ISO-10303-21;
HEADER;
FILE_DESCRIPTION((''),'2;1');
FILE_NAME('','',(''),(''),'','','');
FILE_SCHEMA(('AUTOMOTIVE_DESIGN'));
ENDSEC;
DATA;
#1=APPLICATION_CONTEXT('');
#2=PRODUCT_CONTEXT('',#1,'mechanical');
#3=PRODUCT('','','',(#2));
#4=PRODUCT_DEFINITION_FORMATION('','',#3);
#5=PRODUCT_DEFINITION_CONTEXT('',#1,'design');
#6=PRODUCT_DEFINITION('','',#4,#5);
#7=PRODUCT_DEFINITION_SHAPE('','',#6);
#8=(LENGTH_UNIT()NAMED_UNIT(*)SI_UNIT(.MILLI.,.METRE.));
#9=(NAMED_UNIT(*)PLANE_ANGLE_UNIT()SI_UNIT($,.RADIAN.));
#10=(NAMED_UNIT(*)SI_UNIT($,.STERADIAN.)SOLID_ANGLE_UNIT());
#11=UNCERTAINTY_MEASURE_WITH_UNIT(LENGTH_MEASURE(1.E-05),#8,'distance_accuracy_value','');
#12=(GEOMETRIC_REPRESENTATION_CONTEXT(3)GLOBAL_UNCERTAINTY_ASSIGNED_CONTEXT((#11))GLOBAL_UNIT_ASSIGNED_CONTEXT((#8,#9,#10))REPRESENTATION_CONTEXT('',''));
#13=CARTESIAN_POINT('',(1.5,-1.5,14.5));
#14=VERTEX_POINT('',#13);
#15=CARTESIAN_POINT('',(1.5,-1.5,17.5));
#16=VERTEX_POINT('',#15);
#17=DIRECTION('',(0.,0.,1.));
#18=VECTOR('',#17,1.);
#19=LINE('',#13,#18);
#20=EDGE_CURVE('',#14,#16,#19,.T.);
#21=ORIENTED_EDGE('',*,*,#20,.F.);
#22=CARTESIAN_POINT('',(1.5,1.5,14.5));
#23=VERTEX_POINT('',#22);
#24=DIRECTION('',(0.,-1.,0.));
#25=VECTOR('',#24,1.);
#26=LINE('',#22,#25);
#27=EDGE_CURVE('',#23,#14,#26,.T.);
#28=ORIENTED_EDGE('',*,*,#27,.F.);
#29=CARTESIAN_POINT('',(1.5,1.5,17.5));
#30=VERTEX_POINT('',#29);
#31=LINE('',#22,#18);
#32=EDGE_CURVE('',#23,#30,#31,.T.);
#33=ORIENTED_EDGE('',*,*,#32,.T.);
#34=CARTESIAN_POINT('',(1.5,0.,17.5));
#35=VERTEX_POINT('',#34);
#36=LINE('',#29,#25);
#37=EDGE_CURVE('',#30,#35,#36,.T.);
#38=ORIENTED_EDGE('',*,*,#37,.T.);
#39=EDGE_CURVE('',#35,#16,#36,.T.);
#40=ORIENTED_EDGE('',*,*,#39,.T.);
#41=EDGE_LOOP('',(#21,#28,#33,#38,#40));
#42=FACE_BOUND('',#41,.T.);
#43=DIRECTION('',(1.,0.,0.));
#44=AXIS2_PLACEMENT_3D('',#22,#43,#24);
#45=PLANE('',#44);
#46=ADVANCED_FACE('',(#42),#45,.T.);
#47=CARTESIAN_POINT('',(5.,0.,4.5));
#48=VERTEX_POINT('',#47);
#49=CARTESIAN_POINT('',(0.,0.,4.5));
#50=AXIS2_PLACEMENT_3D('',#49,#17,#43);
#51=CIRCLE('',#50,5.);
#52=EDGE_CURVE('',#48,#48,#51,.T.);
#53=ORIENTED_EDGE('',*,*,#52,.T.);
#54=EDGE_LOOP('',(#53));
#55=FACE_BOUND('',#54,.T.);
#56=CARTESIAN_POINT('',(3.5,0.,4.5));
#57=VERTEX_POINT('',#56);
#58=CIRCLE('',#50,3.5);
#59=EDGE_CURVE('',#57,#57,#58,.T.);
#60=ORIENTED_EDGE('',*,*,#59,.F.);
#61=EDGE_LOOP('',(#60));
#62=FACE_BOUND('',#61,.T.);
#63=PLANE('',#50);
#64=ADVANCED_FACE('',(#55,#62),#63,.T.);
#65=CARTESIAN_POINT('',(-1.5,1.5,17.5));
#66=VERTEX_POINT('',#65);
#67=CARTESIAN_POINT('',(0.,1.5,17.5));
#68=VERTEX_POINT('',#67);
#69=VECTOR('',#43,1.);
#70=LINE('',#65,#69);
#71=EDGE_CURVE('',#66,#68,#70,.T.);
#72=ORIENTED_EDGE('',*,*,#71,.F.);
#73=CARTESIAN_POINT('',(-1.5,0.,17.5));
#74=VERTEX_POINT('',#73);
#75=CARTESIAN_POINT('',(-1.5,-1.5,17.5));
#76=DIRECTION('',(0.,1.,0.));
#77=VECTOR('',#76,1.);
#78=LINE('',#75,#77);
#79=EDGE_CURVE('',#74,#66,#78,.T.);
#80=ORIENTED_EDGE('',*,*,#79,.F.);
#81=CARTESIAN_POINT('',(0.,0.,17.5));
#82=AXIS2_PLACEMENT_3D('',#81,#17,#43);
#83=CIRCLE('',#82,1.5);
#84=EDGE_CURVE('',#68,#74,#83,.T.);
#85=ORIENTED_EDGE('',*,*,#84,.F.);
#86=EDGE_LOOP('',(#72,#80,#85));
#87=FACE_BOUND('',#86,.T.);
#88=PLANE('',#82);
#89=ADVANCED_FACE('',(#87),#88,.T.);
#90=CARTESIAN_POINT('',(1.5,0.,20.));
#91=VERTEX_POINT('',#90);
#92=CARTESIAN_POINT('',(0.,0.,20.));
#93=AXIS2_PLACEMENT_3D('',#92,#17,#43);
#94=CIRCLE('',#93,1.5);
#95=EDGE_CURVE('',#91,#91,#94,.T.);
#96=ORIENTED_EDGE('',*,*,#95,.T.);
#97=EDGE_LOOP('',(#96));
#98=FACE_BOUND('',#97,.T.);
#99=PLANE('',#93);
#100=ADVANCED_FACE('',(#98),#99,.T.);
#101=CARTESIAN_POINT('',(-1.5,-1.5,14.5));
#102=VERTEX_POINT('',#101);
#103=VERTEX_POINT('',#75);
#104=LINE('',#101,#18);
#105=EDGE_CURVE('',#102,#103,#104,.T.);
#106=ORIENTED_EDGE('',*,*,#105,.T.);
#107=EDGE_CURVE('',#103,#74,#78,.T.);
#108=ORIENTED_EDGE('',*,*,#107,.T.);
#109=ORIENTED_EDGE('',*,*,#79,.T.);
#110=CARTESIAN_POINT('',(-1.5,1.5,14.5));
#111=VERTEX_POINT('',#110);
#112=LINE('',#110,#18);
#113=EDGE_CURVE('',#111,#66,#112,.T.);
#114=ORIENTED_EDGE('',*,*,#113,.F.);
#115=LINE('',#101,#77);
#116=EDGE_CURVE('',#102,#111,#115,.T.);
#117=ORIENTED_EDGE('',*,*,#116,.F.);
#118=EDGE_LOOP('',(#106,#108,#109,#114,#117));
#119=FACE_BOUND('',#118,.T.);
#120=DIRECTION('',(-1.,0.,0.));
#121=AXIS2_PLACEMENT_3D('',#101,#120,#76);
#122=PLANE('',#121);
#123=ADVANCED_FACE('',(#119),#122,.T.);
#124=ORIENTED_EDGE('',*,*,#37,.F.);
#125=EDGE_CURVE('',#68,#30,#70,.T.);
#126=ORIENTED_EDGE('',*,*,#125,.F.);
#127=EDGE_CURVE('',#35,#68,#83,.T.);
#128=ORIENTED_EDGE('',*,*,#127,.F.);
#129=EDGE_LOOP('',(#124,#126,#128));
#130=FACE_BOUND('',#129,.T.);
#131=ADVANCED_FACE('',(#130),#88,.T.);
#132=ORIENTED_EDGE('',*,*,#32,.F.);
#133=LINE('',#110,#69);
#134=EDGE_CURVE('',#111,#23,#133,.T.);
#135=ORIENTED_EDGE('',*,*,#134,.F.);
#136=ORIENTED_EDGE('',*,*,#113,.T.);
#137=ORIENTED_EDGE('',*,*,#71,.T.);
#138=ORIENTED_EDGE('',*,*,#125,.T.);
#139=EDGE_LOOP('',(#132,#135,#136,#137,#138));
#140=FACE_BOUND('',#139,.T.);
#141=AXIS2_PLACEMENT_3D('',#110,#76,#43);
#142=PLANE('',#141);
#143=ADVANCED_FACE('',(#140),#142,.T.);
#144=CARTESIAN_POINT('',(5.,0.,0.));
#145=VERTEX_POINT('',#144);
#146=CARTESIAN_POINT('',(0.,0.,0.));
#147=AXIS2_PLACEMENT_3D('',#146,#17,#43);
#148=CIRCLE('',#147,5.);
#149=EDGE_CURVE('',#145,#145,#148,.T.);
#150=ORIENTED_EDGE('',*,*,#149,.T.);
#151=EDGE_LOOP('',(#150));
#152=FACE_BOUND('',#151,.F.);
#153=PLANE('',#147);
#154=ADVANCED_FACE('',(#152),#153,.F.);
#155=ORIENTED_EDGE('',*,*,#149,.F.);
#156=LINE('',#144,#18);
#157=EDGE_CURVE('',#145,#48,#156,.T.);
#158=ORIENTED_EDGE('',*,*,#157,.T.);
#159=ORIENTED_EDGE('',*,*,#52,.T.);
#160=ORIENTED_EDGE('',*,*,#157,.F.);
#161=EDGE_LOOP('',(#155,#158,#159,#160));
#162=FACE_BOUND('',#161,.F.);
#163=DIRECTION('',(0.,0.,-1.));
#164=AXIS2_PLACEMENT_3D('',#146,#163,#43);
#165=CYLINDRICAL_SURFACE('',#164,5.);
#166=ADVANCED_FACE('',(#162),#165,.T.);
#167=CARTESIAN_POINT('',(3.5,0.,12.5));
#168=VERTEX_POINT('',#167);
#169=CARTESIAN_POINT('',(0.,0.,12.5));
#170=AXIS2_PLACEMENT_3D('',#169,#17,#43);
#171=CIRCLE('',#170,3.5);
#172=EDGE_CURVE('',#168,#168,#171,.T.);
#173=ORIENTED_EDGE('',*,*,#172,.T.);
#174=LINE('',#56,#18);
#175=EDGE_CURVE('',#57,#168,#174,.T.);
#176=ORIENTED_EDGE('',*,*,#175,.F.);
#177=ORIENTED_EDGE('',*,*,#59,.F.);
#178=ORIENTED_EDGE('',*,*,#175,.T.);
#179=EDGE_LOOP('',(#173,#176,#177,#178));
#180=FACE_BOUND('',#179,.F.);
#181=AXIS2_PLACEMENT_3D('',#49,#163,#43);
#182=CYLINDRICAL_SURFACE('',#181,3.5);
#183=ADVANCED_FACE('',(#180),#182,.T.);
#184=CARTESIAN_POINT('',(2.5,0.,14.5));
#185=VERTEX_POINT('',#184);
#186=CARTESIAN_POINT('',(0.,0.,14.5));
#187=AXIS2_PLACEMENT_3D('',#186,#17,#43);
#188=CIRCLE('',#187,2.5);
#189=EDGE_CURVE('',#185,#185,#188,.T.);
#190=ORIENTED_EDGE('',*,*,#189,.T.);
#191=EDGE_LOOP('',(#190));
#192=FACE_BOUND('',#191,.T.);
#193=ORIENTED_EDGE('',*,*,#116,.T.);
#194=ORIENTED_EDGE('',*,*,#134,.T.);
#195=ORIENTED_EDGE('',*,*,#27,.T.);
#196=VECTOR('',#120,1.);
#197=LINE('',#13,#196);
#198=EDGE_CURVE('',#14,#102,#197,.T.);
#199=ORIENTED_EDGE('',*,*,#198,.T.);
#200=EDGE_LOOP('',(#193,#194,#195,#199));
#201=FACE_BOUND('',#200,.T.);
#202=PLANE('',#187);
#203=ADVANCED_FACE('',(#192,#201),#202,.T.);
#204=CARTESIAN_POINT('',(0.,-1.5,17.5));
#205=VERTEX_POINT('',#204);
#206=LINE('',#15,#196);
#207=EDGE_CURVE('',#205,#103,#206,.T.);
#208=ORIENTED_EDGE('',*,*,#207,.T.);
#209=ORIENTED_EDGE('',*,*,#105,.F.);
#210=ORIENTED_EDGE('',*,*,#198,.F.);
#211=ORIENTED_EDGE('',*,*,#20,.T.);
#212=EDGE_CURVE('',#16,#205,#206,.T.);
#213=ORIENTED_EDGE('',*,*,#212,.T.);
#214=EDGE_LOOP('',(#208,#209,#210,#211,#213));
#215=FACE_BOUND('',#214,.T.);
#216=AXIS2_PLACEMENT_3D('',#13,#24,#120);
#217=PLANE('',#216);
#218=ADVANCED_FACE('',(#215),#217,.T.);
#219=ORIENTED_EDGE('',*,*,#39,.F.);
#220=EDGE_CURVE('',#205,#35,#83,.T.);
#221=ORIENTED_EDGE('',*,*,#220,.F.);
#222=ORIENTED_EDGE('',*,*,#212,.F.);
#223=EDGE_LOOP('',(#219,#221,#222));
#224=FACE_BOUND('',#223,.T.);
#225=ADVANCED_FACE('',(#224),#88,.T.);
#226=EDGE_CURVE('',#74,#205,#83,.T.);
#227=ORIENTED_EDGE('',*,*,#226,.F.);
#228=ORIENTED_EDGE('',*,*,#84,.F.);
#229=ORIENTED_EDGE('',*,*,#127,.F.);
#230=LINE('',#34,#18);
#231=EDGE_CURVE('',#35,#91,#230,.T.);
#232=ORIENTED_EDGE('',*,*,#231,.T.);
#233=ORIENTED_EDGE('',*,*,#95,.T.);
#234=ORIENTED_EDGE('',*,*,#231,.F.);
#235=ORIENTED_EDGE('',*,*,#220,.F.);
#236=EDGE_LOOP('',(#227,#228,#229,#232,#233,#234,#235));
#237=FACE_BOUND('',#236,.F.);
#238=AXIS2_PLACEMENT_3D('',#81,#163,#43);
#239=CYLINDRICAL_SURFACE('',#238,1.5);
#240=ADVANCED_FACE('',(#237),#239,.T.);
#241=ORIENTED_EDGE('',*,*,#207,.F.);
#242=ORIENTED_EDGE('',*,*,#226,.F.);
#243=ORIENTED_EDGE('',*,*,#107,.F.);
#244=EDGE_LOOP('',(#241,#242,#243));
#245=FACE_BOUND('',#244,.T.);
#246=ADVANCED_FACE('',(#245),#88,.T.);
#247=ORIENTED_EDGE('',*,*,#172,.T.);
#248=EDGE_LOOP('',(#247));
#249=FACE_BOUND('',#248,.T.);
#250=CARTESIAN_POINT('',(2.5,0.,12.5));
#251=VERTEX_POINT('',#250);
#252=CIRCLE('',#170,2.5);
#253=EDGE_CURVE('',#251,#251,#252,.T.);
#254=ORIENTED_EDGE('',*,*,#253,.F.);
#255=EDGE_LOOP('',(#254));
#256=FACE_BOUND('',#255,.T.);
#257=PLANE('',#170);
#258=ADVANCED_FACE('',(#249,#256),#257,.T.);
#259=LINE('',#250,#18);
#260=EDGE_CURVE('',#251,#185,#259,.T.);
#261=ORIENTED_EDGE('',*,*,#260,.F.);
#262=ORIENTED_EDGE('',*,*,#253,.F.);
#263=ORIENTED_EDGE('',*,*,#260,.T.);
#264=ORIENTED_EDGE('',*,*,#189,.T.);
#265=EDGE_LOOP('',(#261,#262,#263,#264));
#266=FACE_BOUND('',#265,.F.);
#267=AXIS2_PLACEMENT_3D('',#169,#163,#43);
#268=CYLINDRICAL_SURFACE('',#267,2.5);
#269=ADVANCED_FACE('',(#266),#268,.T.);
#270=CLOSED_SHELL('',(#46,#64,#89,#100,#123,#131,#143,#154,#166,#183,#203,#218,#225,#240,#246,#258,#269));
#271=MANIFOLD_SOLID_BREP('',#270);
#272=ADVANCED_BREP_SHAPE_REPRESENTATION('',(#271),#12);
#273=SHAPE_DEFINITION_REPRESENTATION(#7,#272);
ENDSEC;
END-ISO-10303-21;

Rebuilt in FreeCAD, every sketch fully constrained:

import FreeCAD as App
import Part
import Sketcher

V = App.Vector
Q = App.Units.Quantity

doc = App.newDocument("Part")
body = doc.addObject("PartDesign::Body", "Body")

# Sketch on XY plane
sketch1 = doc.addObject("Sketcher::SketchObject", "Sketch")
body.addObject(sketch1)
sketch1.AttachmentSupport = (doc.XY_Plane, [""])
sketch1.MapMode = "FlatFace"
sketch1.addGeometry(Part.Circle(V(0, 0, 0), V(0, 0, 1), 5), False)
sketch1.addConstraint(Sketcher.Constraint("Coincident", 0, 3, -1, 1))
sketch1.addConstraint(Sketcher.Constraint("Diameter", 0, Q("10 mm")))
pad1 = doc.addObject("PartDesign::Pad", "Pad")
body.addObject(pad1)
pad1.Profile = sketch1
pad1.Length = 4.5

# Sketch on XY plane
sketch2 = doc.addObject("Sketcher::SketchObject", "Sketch001")
body.addObject(sketch2)
sketch2.AttachmentSupport = (doc.XY_Plane, [""])
sketch2.MapMode = "FlatFace"
sketch2.AttachmentOffset = App.Placement(V(0, 0, 4.5), App.Rotation())
sketch2.addGeometry(Part.Circle(V(0, 0, 0), V(0, 0, 1), 3.5), False)
sketch2.addConstraint(Sketcher.Constraint("Coincident", 0, 3, -1, 1))
sketch2.addConstraint(Sketcher.Constraint("Diameter", 0, Q("7 mm")))
pad2 = doc.addObject("PartDesign::Pad", "Pad001")
body.addObject(pad2)
pad2.Profile = sketch2
pad2.Length = 8

# Sketch on XY plane
sketch3 = doc.addObject("Sketcher::SketchObject", "Sketch002")
body.addObject(sketch3)
sketch3.AttachmentSupport = (doc.XY_Plane, [""])
sketch3.MapMode = "FlatFace"
sketch3.AttachmentOffset = App.Placement(V(0, 0, 12.5), App.Rotation())
sketch3.addGeometry(Part.Circle(V(0, 0, 0), V(0, 0, 1), 2.5), False)
sketch3.addConstraint(Sketcher.Constraint("Coincident", 0, 3, -1, 1))
sketch3.addConstraint(Sketcher.Constraint("Diameter", 0, Q("5 mm")))
pad3 = doc.addObject("PartDesign::Pad", "Pad002")
body.addObject(pad3)
pad3.Profile = sketch3
pad3.Length = 2

# Sketch on XY plane
sketch4 = doc.addObject("Sketcher::SketchObject", "Sketch003")
body.addObject(sketch4)
sketch4.AttachmentSupport = (doc.XY_Plane, [""])
sketch4.MapMode = "FlatFace"
sketch4.AttachmentOffset = App.Placement(V(0, 0, 14.5), App.Rotation())
sketch4.addGeometry(Part.LineSegment(V(1.5, 1.5, 0), V(-1.5, 1.5, 0)), False)
sketch4.addGeometry(Part.LineSegment(V(-1.5, 1.5, 0), V(-1.5, -1.5, 0)), False)
sketch4.addGeometry(Part.LineSegment(V(-1.5, -1.5, 0), V(1.5, -1.5, 0)), False)
sketch4.addGeometry(Part.LineSegment(V(1.5, -1.5, 0), V(1.5, 1.5, 0)), False)
sketch4.addConstraint(Sketcher.Constraint("Coincident", 0, 2, 1, 1))
sketch4.addConstraint(Sketcher.Constraint("Coincident", 1, 2, 2, 1))
sketch4.addConstraint(Sketcher.Constraint("Coincident", 2, 2, 3, 1))
sketch4.addConstraint(Sketcher.Constraint("Coincident", 3, 2, 0, 1))
sketch4.addConstraint(Sketcher.Constraint("Horizontal", 0))
sketch4.addConstraint(Sketcher.Constraint("Vertical", 1))
sketch4.addConstraint(Sketcher.Constraint("Horizontal", 2))
sketch4.addConstraint(Sketcher.Constraint("Vertical", 3))
sketch4.addConstraint(Sketcher.Constraint("Symmetric", 0, 2, 2, 2, -1, 1))
sketch4.addConstraint(Sketcher.Constraint("Equal", 2, 1))
sketch4.addConstraint(Sketcher.Constraint("DistanceX", 0, 2, 0, 1, Q("3 mm")))
pad4 = doc.addObject("PartDesign::Pad", "Pad003")
body.addObject(pad4)
pad4.Profile = sketch4
pad4.Length = 3

# Sketch on XY plane
sketch5 = doc.addObject("Sketcher::SketchObject", "Sketch004")
body.addObject(sketch5)
sketch5.AttachmentSupport = (doc.XY_Plane, [""])
sketch5.MapMode = "FlatFace"
sketch5.AttachmentOffset = App.Placement(V(0, 0, 17.5), App.Rotation())
sketch5.addGeometry(Part.Circle(V(0, 0, 0), V(0, 0, 1), 1.5), False)
sketch5.addConstraint(Sketcher.Constraint("Coincident", 0, 3, -1, 1))
sketch5.addConstraint(Sketcher.Constraint("Diameter", 0, Q("3 mm")))
pad5 = doc.addObject("PartDesign::Pad", "Pad004")
body.addObject(pad5)
pad5.Profile = sketch5
pad5.Length = 2.5

doc.recompute()
